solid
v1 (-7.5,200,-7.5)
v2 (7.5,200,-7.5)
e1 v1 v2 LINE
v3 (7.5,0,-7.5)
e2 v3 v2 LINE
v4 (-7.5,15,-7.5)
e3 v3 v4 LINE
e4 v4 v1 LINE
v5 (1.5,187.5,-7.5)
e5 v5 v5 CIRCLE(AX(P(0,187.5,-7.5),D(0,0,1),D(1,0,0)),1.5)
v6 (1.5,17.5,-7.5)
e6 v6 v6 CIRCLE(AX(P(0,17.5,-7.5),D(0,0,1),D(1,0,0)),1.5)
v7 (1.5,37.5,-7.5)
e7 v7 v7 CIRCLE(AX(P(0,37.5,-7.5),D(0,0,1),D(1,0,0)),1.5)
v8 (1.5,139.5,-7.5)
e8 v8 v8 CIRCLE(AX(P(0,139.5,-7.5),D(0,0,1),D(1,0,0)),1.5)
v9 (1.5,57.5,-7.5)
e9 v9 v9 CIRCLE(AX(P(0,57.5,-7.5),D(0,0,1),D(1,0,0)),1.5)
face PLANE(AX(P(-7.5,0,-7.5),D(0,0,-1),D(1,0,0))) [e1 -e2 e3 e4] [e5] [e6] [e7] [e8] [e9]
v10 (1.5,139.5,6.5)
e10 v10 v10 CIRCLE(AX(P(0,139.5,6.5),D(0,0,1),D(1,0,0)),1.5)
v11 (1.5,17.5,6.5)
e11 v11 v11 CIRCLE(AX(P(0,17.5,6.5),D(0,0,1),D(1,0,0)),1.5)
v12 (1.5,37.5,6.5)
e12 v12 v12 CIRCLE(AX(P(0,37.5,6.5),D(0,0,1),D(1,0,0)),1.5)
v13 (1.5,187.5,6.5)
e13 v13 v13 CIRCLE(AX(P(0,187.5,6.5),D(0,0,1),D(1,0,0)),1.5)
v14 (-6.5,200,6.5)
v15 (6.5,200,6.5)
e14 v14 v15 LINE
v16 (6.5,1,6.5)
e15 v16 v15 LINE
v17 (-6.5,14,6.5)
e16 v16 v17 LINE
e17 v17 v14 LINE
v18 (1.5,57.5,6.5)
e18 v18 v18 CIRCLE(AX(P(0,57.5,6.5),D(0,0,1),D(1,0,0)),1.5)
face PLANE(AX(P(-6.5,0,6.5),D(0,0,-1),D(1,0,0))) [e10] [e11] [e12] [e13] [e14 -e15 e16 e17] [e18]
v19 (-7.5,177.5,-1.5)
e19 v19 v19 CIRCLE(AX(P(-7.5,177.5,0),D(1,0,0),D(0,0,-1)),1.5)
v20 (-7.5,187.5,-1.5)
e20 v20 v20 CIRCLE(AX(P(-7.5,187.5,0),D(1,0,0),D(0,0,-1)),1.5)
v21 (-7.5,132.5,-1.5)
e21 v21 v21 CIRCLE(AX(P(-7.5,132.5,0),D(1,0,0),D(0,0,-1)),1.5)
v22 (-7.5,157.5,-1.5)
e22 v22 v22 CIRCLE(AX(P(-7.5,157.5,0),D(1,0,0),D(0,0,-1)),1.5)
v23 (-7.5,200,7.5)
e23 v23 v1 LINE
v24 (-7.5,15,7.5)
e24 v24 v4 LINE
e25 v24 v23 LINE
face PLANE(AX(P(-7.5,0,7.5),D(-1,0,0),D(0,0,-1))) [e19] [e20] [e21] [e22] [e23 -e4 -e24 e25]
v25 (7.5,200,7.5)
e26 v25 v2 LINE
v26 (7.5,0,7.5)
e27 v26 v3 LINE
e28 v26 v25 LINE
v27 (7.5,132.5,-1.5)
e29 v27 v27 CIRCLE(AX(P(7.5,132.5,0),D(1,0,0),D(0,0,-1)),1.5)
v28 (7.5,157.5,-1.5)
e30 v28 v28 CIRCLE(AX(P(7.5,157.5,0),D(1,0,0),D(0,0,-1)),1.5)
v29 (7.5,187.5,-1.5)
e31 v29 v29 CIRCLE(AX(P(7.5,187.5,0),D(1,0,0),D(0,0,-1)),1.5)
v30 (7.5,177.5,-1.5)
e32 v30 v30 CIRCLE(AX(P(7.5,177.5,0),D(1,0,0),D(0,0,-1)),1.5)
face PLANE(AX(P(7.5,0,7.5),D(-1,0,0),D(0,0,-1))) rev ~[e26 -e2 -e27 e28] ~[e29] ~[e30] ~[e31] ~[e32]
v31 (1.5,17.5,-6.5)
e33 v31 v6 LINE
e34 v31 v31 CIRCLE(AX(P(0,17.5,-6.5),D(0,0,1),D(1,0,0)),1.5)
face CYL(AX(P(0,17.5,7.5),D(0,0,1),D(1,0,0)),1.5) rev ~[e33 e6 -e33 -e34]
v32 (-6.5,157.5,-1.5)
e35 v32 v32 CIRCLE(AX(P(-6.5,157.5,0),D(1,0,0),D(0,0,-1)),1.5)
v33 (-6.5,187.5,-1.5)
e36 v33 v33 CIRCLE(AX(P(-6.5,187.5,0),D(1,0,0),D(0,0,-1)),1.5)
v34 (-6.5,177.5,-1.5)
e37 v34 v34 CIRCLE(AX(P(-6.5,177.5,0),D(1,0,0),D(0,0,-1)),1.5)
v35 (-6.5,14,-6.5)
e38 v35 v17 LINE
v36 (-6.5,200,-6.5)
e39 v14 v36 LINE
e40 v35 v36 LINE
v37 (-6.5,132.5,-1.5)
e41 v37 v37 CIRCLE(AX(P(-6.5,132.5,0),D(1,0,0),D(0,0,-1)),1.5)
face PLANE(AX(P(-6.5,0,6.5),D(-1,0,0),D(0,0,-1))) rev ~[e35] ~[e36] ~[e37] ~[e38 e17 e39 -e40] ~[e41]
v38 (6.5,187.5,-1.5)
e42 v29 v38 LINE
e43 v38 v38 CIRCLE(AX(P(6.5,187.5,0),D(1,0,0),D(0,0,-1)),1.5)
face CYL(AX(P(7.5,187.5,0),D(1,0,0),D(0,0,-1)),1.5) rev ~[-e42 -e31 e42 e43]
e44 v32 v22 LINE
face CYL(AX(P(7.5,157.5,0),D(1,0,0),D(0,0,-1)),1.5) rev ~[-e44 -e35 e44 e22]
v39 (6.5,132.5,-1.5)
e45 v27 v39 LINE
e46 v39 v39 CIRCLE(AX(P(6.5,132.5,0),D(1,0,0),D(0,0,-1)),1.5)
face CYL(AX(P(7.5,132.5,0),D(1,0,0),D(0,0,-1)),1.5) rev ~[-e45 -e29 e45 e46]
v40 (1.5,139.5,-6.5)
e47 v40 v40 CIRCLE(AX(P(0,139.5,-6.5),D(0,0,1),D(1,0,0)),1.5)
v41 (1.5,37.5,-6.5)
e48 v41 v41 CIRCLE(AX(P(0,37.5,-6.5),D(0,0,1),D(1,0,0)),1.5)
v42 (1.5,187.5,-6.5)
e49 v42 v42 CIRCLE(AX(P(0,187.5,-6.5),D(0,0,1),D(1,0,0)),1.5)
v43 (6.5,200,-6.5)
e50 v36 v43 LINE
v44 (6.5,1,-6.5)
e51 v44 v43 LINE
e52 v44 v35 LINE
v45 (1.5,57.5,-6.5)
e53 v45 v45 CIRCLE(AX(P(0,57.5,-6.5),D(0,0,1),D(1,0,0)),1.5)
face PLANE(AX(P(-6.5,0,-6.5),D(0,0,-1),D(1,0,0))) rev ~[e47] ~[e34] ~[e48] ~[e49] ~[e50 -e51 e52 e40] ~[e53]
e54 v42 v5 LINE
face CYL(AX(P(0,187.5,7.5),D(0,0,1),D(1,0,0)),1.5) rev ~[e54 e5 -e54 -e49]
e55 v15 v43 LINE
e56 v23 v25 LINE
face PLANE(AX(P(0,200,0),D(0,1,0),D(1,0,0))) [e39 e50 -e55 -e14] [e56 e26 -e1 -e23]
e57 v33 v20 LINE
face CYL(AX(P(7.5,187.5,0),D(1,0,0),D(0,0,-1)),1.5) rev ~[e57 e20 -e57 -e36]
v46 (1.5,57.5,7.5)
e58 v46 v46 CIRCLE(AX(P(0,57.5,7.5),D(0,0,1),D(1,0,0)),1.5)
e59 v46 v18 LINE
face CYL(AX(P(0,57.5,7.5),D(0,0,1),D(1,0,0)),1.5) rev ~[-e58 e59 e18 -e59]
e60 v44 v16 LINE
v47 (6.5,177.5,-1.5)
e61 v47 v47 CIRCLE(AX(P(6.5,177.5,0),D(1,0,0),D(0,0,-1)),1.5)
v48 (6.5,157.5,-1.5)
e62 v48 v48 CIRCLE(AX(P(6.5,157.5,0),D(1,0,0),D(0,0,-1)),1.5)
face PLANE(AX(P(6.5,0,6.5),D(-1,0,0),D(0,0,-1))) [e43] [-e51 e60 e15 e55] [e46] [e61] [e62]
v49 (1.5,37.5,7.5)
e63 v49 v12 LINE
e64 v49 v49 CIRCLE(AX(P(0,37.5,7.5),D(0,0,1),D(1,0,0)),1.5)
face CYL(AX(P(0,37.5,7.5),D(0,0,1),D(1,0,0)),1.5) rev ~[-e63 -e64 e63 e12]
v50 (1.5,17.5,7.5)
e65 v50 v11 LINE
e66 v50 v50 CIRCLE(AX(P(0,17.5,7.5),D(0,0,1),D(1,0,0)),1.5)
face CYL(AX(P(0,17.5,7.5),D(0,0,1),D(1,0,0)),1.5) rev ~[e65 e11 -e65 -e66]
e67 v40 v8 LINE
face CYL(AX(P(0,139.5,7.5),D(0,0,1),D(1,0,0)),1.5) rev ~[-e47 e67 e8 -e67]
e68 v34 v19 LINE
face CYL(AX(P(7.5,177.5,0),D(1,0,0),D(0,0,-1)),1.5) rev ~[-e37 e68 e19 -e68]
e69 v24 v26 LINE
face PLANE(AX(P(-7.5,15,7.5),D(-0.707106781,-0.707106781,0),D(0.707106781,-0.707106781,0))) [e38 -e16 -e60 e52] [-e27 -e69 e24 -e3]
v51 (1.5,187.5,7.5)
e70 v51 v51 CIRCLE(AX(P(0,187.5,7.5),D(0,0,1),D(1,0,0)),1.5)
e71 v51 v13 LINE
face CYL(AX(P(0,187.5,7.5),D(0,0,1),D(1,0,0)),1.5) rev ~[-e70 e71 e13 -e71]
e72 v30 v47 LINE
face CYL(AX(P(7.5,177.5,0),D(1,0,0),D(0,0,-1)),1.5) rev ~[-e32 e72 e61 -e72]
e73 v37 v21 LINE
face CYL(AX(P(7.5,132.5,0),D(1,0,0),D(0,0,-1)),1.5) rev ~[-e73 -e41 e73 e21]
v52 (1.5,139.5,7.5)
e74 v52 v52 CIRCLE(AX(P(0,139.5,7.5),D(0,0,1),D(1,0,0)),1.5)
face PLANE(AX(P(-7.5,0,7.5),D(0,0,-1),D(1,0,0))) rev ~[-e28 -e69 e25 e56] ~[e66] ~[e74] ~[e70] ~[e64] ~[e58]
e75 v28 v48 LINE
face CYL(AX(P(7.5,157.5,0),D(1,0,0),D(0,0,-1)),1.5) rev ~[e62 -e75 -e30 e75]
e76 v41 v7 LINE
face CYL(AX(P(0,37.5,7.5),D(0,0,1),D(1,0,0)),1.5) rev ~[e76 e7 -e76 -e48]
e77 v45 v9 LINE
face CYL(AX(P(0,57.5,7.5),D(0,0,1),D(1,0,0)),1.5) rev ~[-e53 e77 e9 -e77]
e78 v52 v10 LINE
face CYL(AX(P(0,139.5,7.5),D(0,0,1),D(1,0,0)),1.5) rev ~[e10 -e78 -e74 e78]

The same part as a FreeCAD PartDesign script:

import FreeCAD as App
import Part
import Sketcher

V = App.Vector
Q = App.Units.Quantity

doc = App.newDocument("Part")
body = doc.addObject("PartDesign::Body", "Body")

# Sketch on XZ plane
sketch1 = body.newObject("Sketcher::SketchObject", "Sketch")
sketch1.AttachmentSupport = (doc.getObject("XZ_Plane"), [""])
sketch1.MapMode = "FlatFace"
sketch1.addGeometry(Part.LineSegment(V(-8, -8, 0), V(-8, 8, 0)), False)
sketch1.addGeometry(Part.LineSegment(V(-8, 8, 0), V(8, 8, 0)), False)
sketch1.addGeometry(Part.LineSegment(V(8, 8, 0), V(8, -8, 0)), False)
sketch1.addGeometry(Part.LineSegment(V(8, -8, 0), V(-8, -8, 0)), False)
sketch1.addGeometry(Part.LineSegment(V(6, 6, 0), V(-6, 6, 0)), False)
sketch1.addGeometry(Part.LineSegment(V(-6, 6, 0), V(-6, -6, 0)), False)
sketch1.addGeometry(Part.LineSegment(V(-6, -6, 0), V(6, -6, 0)), False)
sketch1.addGeometry(Part.LineSegment(V(6, -6, 0), V(6, 6, 0)), False)
sketch1.addConstraint(Sketcher.Constraint("Coincident", 0, 2, 1, 1))
sketch1.addConstraint(Sketcher.Constraint("Coincident", 1, 2, 2, 1))
sketch1.addConstraint(Sketcher.Constraint("Coincident", 2, 2, 3, 1))
sketch1.addConstraint(Sketcher.Constraint("Coincident", 3, 2, 0, 1))
sketch1.addConstraint(Sketcher.Constraint("Coincident", 4, 2, 5, 1))
sketch1.addConstraint(Sketcher.Constraint("Coincident", 5, 2, 6, 1))
sketch1.addConstraint(Sketcher.Constraint("Coincident", 6, 2, 7, 1))
sketch1.addConstraint(Sketcher.Constraint("Coincident", 7, 2, 4, 1))
sketch1.addConstraint(Sketcher.Constraint("Vertical", 0))
sketch1.addConstraint(Sketcher.Constraint("Horizontal", 1))
sketch1.addConstraint(Sketcher.Constraint("Vertical", 2))
sketch1.addConstraint(Sketcher.Constraint("Horizontal", 3))
sketch1.addConstraint(Sketcher.Constraint("Horizontal", 4))
sketch1.addConstraint(Sketcher.Constraint("Vertical", 5))
sketch1.addConstraint(Sketcher.Constraint("Horizontal", 6))
sketch1.addConstraint(Sketcher.Constraint("Vertical", 7))
sketch1.addConstraint(Sketcher.Constraint("Symmetric", 0, 2, 2, 2, -1, 1))
sketch1.addConstraint(Sketcher.Constraint("Symmetric", 4, 2, 6, 2, -1, 1))
sketch1.addConstraint(Sketcher.Constraint("Equal", 3, 0))
sketch1.addConstraint(Sketcher.Constraint("Equal", 6, 5))
sketch1.addConstraint(Sketcher.Constraint("DistanceX", 1, 1, 1, 2, Q("15 mm")))
sketch1.addConstraint(Sketcher.Constraint("DistanceX", 4, 2, 4, 1, Q("13 mm")))
pad1 = body.newObject("PartDesign::Pad", "Pad")
pad1.Profile = sketch1
pad1.Length = 200
pad1.Reversed = True

# Sketch on XY plane
sketch2 = body.newObject("Sketcher::SketchObject", "Sketch001")
sketch2.AttachmentSupport = (doc.getObject("XY_Plane"), [""])
sketch2.MapMode = "FlatFace"
sketch2.AttachmentOffset = App.Placement(V(0, 0, 7.5), App.Rotation())
sketch2.addGeometry(Part.Circle(V(0, 37.5, 0), V(0, 0, 1), 1.5), False)
sketch2.addGeometry(Part.Circle(V(0, 17.5, 0), V(0, 0, 1), 1.5), False)
sketch2.addGeometry(Part.Circle(V(0, 57.5, 0), V(0, 0, 1), 1.5), False)
sketch2.addGeometry(Part.Circle(V(0, 187.5, 0), V(0, 0, 1), 1.5), False)
sketch2.addGeometry(Part.Circle(V(0, 139.5, 0), V(0, 0, 1), 1.5), False)
sketch2.addGeometry(Part.LineSegment(V(-7.5, 0, 0), V(7.5, 0, 0)), False)
sketch2.addGeometry(Part.LineSegment(V(7.5, 0, 0), V(-7.5, 15, 0)), False)
sketch2.addGeometry(Part.LineSegment(V(-7.5, 15, 0), V(-7.5, 0, 0)), False)
sketch2.addConstraint(Sketcher.Constraint("Coincident", 5, 2, 6, 1))
sketch2.addConstraint(Sketcher.Constraint("Coincident", 6, 2, 7, 1))
sketch2.addConstraint(Sketcher.Constraint("Coincident", 7, 2, 5, 1))
sketch2.addConstraint(Sketcher.Constraint("Horizontal", 5))
sketch2.addConstraint(Sketcher.Constraint("Vertical", 7))
sketch2.addConstraint(Sketcher.Constraint("Equal", 0, 1))
sketch2.addConstraint(Sketcher.Constraint("Equal", 1, 2))
sketch2.addConstraint(Sketcher.Constraint("Equal", 2, 3))
sketch2.addConstraint(Sketcher.Constraint("Equal", 3, 4))
sketch2.addConstraint(Sketcher.Constraint("Symmetric", 5, 2, 7, 2, -1, 1))
sketch2.addConstraint(Sketcher.Constraint("PointOnObject", 0, 3, -2))
sketch2.addConstraint(Sketcher.Constraint("PointOnObject", 1, 3, -2))
sketch2.addConstraint(Sketcher.Constraint("PointOnObject", 2, 3, -2))
sketch2.addConstraint(Sketcher.Constraint("PointOnObject", 3, 3, -2))
sketch2.addConstraint(Sketcher.Constraint("PointOnObject", 4, 3, -2))
sketch2.addConstraint(Sketcher.Constraint("Equal", 5, 7))
sketch2.addConstraint(Sketcher.Constraint("Diameter", 0, Q("3 mm")))
sketch2.addConstraint(Sketcher.Constraint("DistanceX", 5, 1, 5, 2, Q("15 mm")))
sketch2.addConstraint(Sketcher.Constraint("DistanceY", 1, 3, 0, 3, Q("20 mm")))
sketch2.addConstraint(Sketcher.Constraint("DistanceY", 0, 3, 2, 3, Q("20 mm")))
sketch2.addConstraint(Sketcher.Constraint("DistanceY", 2, 3, 3, 3, Q("130 mm")))
sketch2.addConstraint(Sketcher.Constraint("DistanceY", 4, 3, 3, 3, Q("48 mm")))
sketch2.addConstraint(Sketcher.Constraint("DistanceY", -1, 1, 0, 3, Q("37.5 mm")))
pocket1 = body.newObject("PartDesign::Pocket", "Pocket")
pocket1.Profile = sketch2
pocket1.Type = "ThroughAll"

# Sketch on YZ plane
sketch3 = body.newObject("Sketcher::SketchObject", "Sketch002")
sketch3.AttachmentSupport = (doc.getObject("YZ_Plane"), [""])
sketch3.MapMode = "FlatFace"
sketch3.AttachmentOffset = App.Placement(V(0, 0, 7.5), App.Rotation())
sketch3.addGeometry(Part.Circle(V(157.5, 0, 0), V(0, 0, 1), 1.5), False)
sketch3.addGeometry(Part.Circle(V(177.5, 0, 0), V(0, 0, 1), 1.5), False)
sketch3.addGeometry(Part.Circle(V(132.5, 0, 0), V(0, 0, 1), 1.5), False)
sketch3.addGeometry(Part.Circle(V(187.5, 0, 0), V(0, 0, 1), 1.5), False)
sketch3.addConstraint(Sketcher.Constraint("Equal", 0, 1))
sketch3.addConstraint(Sketcher.Constraint("Equal", 1, 2))
sketch3.addConstraint(Sketcher.Constraint("Equal", 2, 3))
sketch3.addConstraint(Sketcher.Constraint("PointOnObject", 0, 3, -1))
sketch3.addConstraint(Sketcher.Constraint("PointOnObject", 1, 3, -1))
sketch3.addConstraint(Sketcher.Constraint("PointOnObject", 2, 3, -1))
sketch3.addConstraint(Sketcher.Constraint("PointOnObject", 3, 3, -1))
sketch3.addConstraint(Sketcher.Constraint("Diameter", 0, Q("3 mm")))
sketch3.addConstraint(Sketcher.Constraint("DistanceX", 0, 3, 1, 3, Q("20 mm")))
sketch3.addConstraint(Sketcher.Constraint("DistanceX", 2, 3, 0, 3, Q("25 mm")))
sketch3.addConstraint(Sketcher.Constraint("DistanceX", 1, 3, 3, 3, Q("10 mm")))
sketch3.addConstraint(Sketcher.Constraint("DistanceX", -1, 1, 0, 3, Q("157.5 mm")))
pocket2 = body.newObject("PartDesign::Pocket", "Pocket001")
pocket2.Profile = sketch3
pocket2.Type = "ThroughAll"

doc.recompute()
